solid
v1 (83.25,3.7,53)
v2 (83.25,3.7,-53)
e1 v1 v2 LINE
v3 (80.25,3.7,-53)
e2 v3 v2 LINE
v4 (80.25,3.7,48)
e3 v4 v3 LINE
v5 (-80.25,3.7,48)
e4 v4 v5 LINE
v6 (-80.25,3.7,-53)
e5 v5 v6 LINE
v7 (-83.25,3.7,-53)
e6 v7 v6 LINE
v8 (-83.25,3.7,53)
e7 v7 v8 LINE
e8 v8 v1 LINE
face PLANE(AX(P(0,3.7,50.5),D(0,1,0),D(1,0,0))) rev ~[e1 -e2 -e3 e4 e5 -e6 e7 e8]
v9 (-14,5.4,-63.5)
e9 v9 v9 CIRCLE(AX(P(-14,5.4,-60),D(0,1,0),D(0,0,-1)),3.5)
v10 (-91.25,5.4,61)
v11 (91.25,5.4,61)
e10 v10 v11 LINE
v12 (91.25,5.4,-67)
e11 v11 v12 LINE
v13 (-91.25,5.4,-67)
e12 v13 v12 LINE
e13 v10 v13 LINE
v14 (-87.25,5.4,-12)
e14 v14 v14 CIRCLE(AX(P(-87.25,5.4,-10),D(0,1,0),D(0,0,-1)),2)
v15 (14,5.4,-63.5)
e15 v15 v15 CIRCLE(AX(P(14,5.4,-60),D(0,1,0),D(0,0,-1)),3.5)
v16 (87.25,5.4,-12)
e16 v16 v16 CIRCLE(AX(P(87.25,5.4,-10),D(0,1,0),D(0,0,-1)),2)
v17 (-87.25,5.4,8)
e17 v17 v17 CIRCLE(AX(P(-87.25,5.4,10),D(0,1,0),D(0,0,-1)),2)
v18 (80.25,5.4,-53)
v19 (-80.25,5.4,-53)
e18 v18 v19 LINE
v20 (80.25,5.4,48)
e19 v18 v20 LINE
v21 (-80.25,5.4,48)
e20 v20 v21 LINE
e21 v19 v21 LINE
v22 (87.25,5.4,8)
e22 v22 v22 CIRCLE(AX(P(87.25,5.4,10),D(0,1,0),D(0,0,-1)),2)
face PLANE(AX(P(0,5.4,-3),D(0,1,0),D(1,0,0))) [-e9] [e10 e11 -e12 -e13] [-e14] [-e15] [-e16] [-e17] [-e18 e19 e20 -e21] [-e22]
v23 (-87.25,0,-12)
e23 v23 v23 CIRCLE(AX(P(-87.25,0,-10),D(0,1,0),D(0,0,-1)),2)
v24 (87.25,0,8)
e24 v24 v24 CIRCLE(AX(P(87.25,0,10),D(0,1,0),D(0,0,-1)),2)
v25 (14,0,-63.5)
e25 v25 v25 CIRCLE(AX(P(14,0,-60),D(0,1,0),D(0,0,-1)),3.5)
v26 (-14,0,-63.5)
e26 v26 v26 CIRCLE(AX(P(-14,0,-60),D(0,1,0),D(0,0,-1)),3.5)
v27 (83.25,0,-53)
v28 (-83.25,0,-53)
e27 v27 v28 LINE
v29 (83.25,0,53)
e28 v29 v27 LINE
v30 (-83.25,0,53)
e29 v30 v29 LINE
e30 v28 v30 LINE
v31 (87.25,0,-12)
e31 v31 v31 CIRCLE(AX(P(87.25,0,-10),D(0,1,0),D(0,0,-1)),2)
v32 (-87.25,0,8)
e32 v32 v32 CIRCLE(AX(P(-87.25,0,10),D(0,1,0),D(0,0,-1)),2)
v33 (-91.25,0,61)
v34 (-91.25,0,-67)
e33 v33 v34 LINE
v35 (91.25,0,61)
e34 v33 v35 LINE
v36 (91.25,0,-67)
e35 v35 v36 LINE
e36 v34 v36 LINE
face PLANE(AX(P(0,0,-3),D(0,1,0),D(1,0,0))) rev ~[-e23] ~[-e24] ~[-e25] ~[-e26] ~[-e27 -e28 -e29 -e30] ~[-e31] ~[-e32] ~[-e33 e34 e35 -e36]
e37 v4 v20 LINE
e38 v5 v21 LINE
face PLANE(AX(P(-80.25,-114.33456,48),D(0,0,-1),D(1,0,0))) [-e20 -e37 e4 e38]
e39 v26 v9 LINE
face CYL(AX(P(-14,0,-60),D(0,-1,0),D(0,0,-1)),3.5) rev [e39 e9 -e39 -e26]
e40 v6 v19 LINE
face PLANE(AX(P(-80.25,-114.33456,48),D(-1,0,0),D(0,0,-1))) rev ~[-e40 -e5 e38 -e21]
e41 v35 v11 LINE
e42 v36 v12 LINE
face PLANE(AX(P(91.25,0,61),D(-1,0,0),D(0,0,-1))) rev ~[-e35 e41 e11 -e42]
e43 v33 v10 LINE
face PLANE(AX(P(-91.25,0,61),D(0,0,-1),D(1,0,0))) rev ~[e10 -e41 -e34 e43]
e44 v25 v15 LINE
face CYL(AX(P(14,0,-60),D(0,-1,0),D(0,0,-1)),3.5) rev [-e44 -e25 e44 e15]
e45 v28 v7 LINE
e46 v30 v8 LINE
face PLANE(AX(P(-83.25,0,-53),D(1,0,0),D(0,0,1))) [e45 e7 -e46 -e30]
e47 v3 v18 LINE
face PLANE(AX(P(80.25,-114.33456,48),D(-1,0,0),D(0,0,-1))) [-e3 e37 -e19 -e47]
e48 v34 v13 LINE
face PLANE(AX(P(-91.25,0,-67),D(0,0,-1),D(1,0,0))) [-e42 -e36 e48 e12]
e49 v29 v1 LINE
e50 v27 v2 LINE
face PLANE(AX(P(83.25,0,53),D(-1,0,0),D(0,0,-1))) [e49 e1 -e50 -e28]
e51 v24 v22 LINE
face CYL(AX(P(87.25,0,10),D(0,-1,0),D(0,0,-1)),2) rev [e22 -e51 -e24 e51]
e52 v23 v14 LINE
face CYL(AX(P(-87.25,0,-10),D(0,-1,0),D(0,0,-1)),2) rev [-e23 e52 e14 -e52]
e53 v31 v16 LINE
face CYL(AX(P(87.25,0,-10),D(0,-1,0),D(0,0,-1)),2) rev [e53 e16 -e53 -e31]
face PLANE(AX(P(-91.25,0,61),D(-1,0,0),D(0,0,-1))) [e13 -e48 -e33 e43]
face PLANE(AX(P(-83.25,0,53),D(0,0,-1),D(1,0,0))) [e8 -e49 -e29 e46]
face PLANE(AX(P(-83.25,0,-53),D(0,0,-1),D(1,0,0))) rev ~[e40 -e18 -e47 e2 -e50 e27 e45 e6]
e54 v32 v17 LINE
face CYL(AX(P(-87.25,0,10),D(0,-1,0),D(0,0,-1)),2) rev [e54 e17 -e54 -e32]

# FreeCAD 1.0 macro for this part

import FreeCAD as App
import Part
import Sketcher
from FreeCAD import Vector

doc = App.newDocument("Part")
body = doc.addObject("PartDesign::Body", "Body")

sketch1 = body.newObject("Sketcher::SketchObject", "Sketch")
sketch1.AttachmentSupport = (doc.getObject("XZ_Plane"), [""])
sketch1.MapMode = "FlatFace"
sketch1.addGeometry([
    Part.LineSegment(Vector(-91.25, -67, 0), Vector(-91.25, 61, 0)),
    Part.LineSegment(Vector(-91.25, 61, 0), Vector(91.25, 61, 0)),
    Part.LineSegment(Vector(91.25, 61, 0), Vector(91.25, -67, 0)),
    Part.LineSegment(Vector(91.25, -67, 0), Vector(-91.25, -67, 0)),
    Part.Circle(Vector(-87.25, 10, 0), Vector(0, 0, 1), 2),
    Part.Circle(Vector(-87.25, -10, 0), Vector(0, 0, 1), 2),
    Part.Circle(Vector(87.25, 10, 0), Vector(0, 0, 1), 2),
    Part.Circle(Vector(87.25, -10, 0), Vector(0, 0, 1), 2),
    Part.Circle(Vector(-14, -60, 0), Vector(0, 0, 1), 3.5),
    Part.Circle(Vector(14, -60, 0), Vector(0, 0, 1), 3.5),
], False)
sketch1.addConstraint([
    Sketcher.Constraint("Coincident", 0, 2, 1, 1),
    Sketcher.Constraint("Coincident", 1, 2, 2, 1),
    Sketcher.Constraint("Coincident", 2, 2, 3, 1),
    Sketcher.Constraint("Coincident", 3, 2, 0, 1),
    Sketcher.Constraint("Vertical", 0),
    Sketcher.Constraint("Horizontal", 1),
    Sketcher.Constraint("Vertical", 2),
    Sketcher.Constraint("Horizontal", 3),
    Sketcher.Constraint("Equal", 4, 5),
    Sketcher.Constraint("Equal", 5, 6),
    Sketcher.Constraint("Equal", 6, 7),
    Sketcher.Constraint("Equal", 8, 9),
    Sketcher.Constraint("Symmetric", 5, 3, 6, 3, -1, 1),
    Sketcher.Constraint("Symmetric", 4, 3, 7, 3, -1, 1),
    Sketcher.Constraint("Symmetric", 4, 3, 6, 3, -2),
    Sketcher.Constraint("Symmetric", 8, 3, 9, 3, -2),
    Sketcher.Constraint("Diameter", 4, 4.0),
    Sketcher.Constraint("Diameter", 8, 7.0),
    Sketcher.Constraint("DistanceY", 0, 1, 0, 2, 128.0),
    Sketcher.Constraint("DistanceX", 1, 1, 1, 2, 182.5),
    Sketcher.Constraint("DistanceY", -1, 1, 4, 3, 10.0),
    Sketcher.Constraint("DistanceX", 8, 3, -1, 1, 14.0),
    Sketcher.Constraint("DistanceY", 8, 3, -1, 1, 60.0),
    Sketcher.Constraint("DistanceY", -1, 1, 0, 2, 61.0),
    Sketcher.Constraint("DistanceX", 0, 2, 4, 3, 4.0),
    Sketcher.Constraint("DistanceX", 6, 3, 1, 2, 4.0),
])
pad1 = body.newObject("PartDesign::Pad", "Pad")
pad1.Profile = sketch1
pad1.Length = 5.4
pad1.Reversed = True

sketch2 = body.newObject("Sketcher::SketchObject", "Sketch001")
sketch2.AttachmentSupport = (doc.getObject("XZ_Plane"), [""])
sketch2.MapMode = "FlatFace"
sketch2.addGeometry([
    Part.LineSegment(Vector(-80.25, -53, 0), Vector(-80.25, 48, 0)),
    Part.LineSegment(Vector(-80.25, 48, 0), Vector(80.25, 48, 0)),
    Part.LineSegment(Vector(80.25, 48, 0), Vector(80.25, -53, 0)),
    Part.LineSegment(Vector(80.25, -53, 0), Vector(-80.25, -53, 0)),
], False)
sketch2.addConstraint([
    Sketcher.Constraint("Coincident", 0, 2, 1, 1),
    Sketcher.Constraint("Coincident", 1, 2, 2, 1),
    Sketcher.Constraint("Coincident", 2, 2, 3, 1),
    Sketcher.Constraint("Coincident", 3, 2, 0, 1),
    Sketcher.Constraint("Vertical", 0),
    Sketcher.Constraint("Horizontal", 1),
    Sketcher.Constraint("Vertical", 2),
    Sketcher.Constraint("Horizontal", 3),
    Sketcher.Constraint("DistanceY", 0, 1, 0, 2, 101.0),
    Sketcher.Constraint("DistanceX", 1, 1, 1, 2, 160.5),
    Sketcher.Constraint("DistanceY", -1, 1, 0, 2, 48.0),
    Sketcher.Constraint("DistanceX", 0, 2, -1, 1, 80.25),
])
pocket1 = body.newObject("PartDesign::Pocket", "Pocket")
pocket1.Profile = sketch2
pocket1.Type = "ThroughAll"
pocket1.Midplane = True

sketch3 = body.newObject("Sketcher::SketchObject", "Sketch002")
sketch3.AttachmentSupport = (doc.getObject("XZ_Plane"), [""])
sketch3.MapMode = "FlatFace"
sketch3.addGeometry([
    Part.LineSegment(Vector(-83.25, 53, 0), Vector(83.25, 53, 0)),
    Part.LineSegment(Vector(83.25, 53, 0), Vector(83.25, -53, 0)),
    Part.LineSegment(Vector(83.25, -53, 0), Vector(80.25, -53, 0)),
    Part.LineSegment(Vector(80.25, -53, 0), Vector(80.25, 48, 0)),
    Part.LineSegment(Vector(80.25, 48, 0), Vector(-80.25, 48, 0)),
    Part.LineSegment(Vector(-80.25, 48, 0), Vector(-80.25, -53, 0)),
    Part.LineSegment(Vector(-80.25, -53, 0), Vector(-83.25, -53, 0)),
    Part.LineSegment(Vector(-83.25, -53, 0), Vector(-83.25, 53, 0)),
], False)
sketch3.addConstraint([
    Sketcher.Constraint("Coincident", 0, 2, 1, 1),
    Sketcher.Constraint("Coincident", 1, 2, 2, 1),
    Sketcher.Constraint("Coincident", 2, 2, 3, 1),
    Sketcher.Constraint("Coincident", 3, 2, 4, 1),
    Sketcher.Constraint("Coincident", 4, 2, 5, 1),
    Sketcher.Constraint("Coincident", 5, 2, 6, 1),
    Sketcher.Constraint("Coincident", 6, 2, 7, 1),
    Sketcher.Constraint("Coincident", 7, 2, 0, 1),
    Sketcher.Constraint("Horizontal", 0),
    Sketcher.Constraint("Vertical", 1),
    Sketcher.Constraint("Horizontal", 2),
    Sketcher.Constraint("Vertical", 3),
    Sketcher.Constraint("Horizontal", 4),
    Sketcher.Constraint("Vertical", 5),
    Sketcher.Constraint("Horizontal", 6),
    Sketcher.Constraint("Vertical", 7),
    Sketcher.Constraint("Symmetric", 0, 2, 6, 2, -1, 1),
    Sketcher.Constraint("Symmetric", 2, 2, 5, 2, -2),
    Sketcher.Constraint("DistanceX", 2, 2, 2, 1, 3.0),
    Sketcher.Constraint("DistanceY", 1, 2, 1, 1, 106.0),
    Sketcher.Constraint("DistanceY", 3, 1, 3, 2, 101.0),
    Sketcher.Constraint("DistanceX", 0, 1, 0, 2, 166.5),
])
pocket2 = body.newObject("PartDesign::Pocket", "Pocket001")
pocket2.Profile = sketch3
pocket2.Length = 3.7

doc.recompute()
